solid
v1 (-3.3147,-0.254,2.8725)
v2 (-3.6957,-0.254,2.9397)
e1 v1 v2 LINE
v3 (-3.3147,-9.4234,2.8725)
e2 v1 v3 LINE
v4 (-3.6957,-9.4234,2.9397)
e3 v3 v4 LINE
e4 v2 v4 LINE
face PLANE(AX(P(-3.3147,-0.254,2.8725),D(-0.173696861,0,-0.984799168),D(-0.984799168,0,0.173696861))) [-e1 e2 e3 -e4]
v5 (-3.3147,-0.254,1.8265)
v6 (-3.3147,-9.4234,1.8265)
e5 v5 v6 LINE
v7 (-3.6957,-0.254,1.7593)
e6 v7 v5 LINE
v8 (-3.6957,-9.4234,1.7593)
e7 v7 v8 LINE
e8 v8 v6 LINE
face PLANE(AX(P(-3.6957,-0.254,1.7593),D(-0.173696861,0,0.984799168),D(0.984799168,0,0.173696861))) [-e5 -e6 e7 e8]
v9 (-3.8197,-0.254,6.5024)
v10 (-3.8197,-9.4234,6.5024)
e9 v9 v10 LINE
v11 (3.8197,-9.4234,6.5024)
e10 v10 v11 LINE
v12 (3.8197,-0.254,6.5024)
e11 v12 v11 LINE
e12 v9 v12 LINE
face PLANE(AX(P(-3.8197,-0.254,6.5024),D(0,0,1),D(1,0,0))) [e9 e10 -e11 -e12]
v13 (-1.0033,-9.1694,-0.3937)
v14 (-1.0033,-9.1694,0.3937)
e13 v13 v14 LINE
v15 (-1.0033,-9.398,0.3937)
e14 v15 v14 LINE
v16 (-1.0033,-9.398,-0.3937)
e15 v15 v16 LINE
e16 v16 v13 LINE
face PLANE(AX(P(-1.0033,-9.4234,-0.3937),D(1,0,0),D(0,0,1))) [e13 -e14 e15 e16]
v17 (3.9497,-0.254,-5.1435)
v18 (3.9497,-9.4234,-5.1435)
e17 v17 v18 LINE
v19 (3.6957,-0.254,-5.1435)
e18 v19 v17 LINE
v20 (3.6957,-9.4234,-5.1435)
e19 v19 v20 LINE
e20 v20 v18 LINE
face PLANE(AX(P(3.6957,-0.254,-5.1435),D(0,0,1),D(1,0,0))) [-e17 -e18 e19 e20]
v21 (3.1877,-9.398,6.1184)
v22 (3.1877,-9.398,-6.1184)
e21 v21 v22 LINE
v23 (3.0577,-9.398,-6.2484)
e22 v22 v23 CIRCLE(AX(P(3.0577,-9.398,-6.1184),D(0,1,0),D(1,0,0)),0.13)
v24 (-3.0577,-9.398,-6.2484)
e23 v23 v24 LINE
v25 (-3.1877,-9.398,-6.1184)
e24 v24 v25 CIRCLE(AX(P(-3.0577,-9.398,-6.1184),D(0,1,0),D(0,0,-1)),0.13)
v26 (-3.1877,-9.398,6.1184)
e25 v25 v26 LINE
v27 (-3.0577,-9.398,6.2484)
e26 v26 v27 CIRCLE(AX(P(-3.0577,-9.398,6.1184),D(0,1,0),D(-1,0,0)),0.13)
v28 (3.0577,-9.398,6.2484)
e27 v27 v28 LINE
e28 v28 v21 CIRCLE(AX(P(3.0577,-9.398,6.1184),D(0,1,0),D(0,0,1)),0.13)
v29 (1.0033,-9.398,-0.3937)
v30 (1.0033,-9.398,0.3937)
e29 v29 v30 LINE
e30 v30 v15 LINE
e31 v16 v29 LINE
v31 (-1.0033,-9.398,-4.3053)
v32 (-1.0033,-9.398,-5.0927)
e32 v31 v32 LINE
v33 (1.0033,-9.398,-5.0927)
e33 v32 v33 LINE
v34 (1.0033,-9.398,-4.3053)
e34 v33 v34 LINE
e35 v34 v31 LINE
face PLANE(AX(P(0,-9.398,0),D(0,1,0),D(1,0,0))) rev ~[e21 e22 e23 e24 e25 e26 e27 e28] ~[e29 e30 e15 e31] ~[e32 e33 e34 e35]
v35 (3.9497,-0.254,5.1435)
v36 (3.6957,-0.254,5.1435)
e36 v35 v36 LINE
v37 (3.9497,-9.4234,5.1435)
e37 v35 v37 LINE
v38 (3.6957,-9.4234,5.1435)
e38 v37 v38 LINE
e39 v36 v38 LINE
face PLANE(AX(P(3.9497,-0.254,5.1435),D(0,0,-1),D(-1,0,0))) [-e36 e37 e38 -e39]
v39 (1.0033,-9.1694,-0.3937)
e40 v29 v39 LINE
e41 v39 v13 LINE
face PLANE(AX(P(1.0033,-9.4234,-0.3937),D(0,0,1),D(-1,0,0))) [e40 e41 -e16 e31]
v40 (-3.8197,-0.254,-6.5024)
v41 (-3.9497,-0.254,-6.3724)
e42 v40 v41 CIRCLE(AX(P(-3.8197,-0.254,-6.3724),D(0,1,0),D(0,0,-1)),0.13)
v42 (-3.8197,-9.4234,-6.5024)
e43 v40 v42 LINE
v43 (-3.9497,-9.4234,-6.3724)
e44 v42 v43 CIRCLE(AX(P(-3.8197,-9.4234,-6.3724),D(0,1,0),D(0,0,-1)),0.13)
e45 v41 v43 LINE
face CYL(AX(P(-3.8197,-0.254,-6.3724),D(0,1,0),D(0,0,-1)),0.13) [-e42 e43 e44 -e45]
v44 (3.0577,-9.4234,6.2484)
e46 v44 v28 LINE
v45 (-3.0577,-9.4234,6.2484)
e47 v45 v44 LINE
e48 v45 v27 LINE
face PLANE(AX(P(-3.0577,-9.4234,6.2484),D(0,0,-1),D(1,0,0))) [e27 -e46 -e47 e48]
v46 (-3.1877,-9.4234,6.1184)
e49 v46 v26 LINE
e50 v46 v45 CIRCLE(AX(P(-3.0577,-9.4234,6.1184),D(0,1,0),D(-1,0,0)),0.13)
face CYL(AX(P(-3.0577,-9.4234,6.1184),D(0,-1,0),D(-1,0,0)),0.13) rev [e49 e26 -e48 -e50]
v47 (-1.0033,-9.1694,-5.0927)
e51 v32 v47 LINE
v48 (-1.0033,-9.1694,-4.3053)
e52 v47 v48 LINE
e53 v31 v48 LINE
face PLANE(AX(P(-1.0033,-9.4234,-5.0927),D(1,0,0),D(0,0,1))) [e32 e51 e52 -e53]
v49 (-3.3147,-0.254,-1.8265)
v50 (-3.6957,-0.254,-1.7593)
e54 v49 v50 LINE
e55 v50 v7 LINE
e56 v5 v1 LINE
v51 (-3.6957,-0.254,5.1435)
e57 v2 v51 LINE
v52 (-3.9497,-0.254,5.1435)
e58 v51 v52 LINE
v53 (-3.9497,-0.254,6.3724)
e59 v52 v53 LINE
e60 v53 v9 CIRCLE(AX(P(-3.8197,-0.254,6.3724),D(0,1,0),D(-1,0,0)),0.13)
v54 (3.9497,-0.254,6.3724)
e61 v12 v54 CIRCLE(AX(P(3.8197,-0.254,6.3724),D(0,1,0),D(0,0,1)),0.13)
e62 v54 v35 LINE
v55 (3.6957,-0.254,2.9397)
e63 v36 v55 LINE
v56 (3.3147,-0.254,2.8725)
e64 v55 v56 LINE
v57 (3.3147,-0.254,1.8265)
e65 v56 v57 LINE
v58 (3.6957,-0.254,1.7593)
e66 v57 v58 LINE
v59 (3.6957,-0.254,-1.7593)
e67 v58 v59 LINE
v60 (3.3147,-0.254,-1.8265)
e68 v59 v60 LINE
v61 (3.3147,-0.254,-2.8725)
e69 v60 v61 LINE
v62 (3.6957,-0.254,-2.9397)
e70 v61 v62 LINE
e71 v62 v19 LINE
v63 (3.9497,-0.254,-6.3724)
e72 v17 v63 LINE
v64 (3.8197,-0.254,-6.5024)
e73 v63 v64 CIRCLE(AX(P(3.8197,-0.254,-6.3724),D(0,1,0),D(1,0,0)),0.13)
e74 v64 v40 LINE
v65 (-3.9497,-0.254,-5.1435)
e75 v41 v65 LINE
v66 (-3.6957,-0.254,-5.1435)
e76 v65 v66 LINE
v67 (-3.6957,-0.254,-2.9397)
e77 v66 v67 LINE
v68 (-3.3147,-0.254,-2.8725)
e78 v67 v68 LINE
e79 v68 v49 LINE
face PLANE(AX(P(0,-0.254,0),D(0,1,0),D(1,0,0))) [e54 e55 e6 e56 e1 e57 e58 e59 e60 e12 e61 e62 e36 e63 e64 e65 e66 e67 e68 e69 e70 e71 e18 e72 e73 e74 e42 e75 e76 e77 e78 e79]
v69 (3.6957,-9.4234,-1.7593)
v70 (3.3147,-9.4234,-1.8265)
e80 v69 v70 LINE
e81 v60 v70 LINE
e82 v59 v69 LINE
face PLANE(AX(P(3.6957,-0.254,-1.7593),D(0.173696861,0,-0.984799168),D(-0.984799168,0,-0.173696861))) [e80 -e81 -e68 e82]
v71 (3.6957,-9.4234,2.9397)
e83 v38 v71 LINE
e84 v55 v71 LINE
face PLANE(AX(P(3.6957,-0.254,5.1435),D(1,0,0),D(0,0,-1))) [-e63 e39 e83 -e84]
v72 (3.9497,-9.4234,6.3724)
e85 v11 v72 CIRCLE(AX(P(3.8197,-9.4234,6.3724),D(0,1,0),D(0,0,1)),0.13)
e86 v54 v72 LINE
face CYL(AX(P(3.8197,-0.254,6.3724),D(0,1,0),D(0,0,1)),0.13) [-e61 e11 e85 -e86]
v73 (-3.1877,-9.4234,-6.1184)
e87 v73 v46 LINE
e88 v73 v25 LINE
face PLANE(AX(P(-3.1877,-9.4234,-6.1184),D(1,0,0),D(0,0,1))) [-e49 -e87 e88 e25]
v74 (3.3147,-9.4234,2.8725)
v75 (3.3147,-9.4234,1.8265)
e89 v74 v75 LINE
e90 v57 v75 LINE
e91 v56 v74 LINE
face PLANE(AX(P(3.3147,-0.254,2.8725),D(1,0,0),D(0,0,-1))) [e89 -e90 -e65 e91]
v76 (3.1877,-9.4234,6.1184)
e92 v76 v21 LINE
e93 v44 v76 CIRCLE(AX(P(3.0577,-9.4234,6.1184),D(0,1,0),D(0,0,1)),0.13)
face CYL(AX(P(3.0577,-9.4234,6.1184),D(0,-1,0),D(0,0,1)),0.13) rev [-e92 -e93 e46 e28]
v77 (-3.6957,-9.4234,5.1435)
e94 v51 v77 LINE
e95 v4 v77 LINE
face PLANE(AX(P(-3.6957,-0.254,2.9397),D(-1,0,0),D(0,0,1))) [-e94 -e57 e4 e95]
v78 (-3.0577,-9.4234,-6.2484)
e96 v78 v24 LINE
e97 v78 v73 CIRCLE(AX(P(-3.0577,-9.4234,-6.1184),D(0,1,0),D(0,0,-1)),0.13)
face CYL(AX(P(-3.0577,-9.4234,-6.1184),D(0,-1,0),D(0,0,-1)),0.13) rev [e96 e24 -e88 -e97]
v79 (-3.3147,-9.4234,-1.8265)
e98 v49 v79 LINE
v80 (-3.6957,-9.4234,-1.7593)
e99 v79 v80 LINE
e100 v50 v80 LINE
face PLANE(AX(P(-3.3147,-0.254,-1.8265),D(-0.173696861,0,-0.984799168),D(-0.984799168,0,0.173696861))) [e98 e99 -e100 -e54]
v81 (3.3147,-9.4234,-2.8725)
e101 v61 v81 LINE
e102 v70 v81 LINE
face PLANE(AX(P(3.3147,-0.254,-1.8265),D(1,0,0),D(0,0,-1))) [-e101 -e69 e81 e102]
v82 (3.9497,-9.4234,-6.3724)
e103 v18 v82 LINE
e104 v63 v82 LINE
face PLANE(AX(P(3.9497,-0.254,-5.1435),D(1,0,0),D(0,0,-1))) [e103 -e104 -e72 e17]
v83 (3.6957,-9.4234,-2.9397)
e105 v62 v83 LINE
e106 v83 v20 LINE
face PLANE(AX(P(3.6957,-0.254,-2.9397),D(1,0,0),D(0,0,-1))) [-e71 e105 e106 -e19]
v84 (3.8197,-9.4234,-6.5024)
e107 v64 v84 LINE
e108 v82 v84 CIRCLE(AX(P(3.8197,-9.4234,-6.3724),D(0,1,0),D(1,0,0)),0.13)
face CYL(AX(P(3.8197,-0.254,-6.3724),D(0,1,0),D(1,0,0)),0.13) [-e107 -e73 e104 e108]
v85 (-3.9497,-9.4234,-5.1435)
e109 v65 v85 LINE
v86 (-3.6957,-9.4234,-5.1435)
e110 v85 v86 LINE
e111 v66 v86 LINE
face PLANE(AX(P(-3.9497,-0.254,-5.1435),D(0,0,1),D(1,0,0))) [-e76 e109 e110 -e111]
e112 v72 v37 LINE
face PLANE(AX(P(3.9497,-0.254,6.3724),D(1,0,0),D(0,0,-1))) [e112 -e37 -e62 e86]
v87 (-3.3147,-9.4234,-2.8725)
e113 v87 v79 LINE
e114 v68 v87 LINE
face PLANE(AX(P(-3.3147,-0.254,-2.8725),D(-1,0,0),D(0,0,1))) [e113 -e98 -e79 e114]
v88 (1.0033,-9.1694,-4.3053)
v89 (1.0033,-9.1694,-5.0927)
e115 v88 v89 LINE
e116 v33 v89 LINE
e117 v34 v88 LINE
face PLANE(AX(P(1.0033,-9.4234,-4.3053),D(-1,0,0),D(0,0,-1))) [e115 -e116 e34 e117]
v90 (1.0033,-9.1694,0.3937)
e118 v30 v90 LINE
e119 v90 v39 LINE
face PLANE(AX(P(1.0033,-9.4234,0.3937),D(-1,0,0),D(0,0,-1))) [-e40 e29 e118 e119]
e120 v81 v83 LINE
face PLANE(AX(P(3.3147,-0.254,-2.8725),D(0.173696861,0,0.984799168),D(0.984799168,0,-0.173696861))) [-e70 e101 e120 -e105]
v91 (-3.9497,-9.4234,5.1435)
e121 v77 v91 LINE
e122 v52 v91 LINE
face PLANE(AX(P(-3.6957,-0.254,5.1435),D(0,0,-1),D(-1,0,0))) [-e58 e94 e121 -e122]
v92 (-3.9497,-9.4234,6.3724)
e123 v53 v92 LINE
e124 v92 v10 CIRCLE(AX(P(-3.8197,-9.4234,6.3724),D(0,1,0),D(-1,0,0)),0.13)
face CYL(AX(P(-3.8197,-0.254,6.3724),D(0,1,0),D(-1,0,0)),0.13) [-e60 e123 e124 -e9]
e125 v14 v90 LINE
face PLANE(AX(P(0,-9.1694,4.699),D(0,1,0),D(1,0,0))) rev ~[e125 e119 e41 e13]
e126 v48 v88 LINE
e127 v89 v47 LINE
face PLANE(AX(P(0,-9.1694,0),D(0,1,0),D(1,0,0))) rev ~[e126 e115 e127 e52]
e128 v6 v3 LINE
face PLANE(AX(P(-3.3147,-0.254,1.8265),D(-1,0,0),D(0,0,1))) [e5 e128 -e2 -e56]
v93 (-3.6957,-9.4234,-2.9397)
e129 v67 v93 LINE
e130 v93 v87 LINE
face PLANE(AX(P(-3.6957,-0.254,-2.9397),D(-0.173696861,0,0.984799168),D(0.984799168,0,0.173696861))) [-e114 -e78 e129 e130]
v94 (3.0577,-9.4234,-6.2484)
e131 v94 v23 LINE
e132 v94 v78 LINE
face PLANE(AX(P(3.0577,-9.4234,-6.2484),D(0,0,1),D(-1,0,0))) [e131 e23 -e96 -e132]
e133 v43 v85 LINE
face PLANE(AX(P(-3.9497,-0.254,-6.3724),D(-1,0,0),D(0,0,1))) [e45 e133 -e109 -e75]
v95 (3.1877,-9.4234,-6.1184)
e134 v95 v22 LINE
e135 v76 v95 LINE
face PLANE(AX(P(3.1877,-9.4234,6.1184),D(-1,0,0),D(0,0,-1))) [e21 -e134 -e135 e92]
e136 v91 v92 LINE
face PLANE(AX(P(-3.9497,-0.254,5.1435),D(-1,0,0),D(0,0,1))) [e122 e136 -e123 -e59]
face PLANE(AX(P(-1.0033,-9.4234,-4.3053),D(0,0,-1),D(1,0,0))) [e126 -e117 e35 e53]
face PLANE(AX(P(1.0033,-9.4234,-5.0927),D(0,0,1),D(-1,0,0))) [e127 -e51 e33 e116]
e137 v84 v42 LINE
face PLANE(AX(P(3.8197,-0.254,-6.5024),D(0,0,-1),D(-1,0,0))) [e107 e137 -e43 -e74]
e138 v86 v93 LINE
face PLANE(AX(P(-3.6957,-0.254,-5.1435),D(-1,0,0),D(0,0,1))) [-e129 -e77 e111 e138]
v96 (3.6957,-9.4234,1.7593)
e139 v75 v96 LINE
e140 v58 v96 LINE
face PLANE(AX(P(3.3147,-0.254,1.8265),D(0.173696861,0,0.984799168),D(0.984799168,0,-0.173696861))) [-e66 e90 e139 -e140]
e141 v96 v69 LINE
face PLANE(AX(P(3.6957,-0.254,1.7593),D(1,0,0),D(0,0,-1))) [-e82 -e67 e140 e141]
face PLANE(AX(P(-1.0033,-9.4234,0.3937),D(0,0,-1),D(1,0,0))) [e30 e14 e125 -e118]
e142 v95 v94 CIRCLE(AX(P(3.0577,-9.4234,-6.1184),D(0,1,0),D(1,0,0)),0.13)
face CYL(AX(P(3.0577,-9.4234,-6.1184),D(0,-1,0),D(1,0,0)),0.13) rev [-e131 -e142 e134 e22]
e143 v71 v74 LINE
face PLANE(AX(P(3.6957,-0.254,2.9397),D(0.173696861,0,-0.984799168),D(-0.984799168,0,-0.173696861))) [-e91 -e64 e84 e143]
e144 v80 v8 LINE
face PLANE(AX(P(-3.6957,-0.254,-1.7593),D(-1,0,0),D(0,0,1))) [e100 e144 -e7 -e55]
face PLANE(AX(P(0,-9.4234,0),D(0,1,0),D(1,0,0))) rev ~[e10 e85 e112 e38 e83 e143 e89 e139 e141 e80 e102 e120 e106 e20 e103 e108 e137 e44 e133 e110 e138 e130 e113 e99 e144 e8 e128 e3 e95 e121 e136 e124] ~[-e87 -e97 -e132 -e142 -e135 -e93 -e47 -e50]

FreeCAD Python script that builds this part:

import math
import FreeCAD as App
import Part
import Sketcher
from FreeCAD import Vector
Q = App.Units.Quantity


def add_polygon(sketch, points):
    """Adds a closed chain of lines whose ends are joined by coincident constraints."""
    first, n = sketch.GeometryCount, len(points)
    for a, b in zip(points, points[1:] + points[:1]):
        sketch.addGeometry(Part.LineSegment(App.Vector(*a, 0), App.Vector(*b, 0)), False)
    for i in range(n):
        sketch.addConstraint(Sketcher.Constraint("Coincident", first + i, 2, first + (i + 1) % n, 1))

doc = App.newDocument("Part")
body = doc.addObject("PartDesign::Body", "Body")

sketch1 = body.newObject("Sketcher::SketchObject", "Sketch")
sketch1.AttachmentSupport = (doc.getObject("XZ_Plane"), [""])
sketch1.MapMode = "FlatFace"
sketch1.AttachmentOffset = App.Placement(Vector(0, 0, 0.01 * 25.4), App.Rotation())
sketch1.addGeometry([
    Part.LineSegment(Vector(-3.7, 5.14, 0), Vector(-3.95, 5.14, 0)),
    Part.LineSegment(Vector(-3.95, 5.14, 0), Vector(-3.95, 6.37, 0)),
    Part.ArcOfCircle(Part.Circle(Vector(-3.82, 6.37, 0), Vector(0, 0, 1), 0.13), math.radians(90), math.radians(180)),
    Part.LineSegment(Vector(-3.82, 6.5, 0), Vector(3.82, 6.5, 0)),
    Part.ArcOfCircle(Part.Circle(Vector(3.82, 6.37, 0), Vector(0, 0, 1), 0.13), math.radians(0), math.radians(90)),
    Part.LineSegment(Vector(3.95, 6.37, 0), Vector(3.95, 5.14, 0)),
    Part.LineSegment(Vector(3.95, 5.14, 0), Vector(3.7, 5.14, 0)),
    Part.LineSegment(Vector(3.7, 5.14, 0), Vector(3.7, 2.94, 0)),
    Part.LineSegment(Vector(3.7, 2.94, 0), Vector(3.31, 2.87, 0)),
    Part.LineSegment(Vector(3.31, 2.87, 0), Vector(3.31, 1.83, 0)),
    Part.LineSegment(Vector(3.31, 1.83, 0), Vector(3.7, 1.76, 0)),
    Part.LineSegment(Vector(3.7, 1.76, 0), Vector(3.7, -1.76, 0)),
    Part.LineSegment(Vector(3.7, -1.76, 0), Vector(3.31, -1.83, 0)),
    Part.LineSegment(Vector(3.31, -1.83, 0), Vector(3.31, -2.87, 0)),
    Part.LineSegment(Vector(3.31, -2.87, 0), Vector(3.7, -2.94, 0)),
    Part.LineSegment(Vector(3.7, -2.94, 0), Vector(3.7, -5.14, 0)),
    Part.LineSegment(Vector(3.7, -5.14, 0), Vector(3.95, -5.14, 0)),
    Part.LineSegment(Vector(3.95, -5.14, 0), Vector(3.95, -6.37, 0)),
    Part.ArcOfCircle(Part.Circle(Vector(3.82, -6.37, 0), Vector(0, 0, 1), 0.13), math.radians(-90), math.radians(0)),
    Part.LineSegment(Vector(3.82, -6.5, 0), Vector(-3.82, -6.5, 0)),
    Part.ArcOfCircle(Part.Circle(Vector(-3.82, -6.37, 0), Vector(0, 0, 1), 0.13), math.radians(180), math.radians(270)),
    Part.LineSegment(Vector(-3.95, -6.37, 0), Vector(-3.95, -5.14, 0)),
    Part.LineSegment(Vector(-3.95, -5.14, 0), Vector(-3.7, -5.14, 0)),
    Part.LineSegment(Vector(-3.7, -5.14, 0), Vector(-3.7, -2.94, 0)),
    Part.LineSegment(Vector(-3.7, -2.94, 0), Vector(-3.31, -2.87, 0)),
    Part.LineSegment(Vector(-3.31, -2.87, 0), Vector(-3.31, -1.83, 0)),
    Part.LineSegment(Vector(-3.31, -1.83, 0), Vector(-3.7, -1.76, 0)),
    Part.LineSegment(Vector(-3.7, -1.76, 0), Vector(-3.7, 1.76, 0)),
    Part.LineSegment(Vector(-3.7, 1.76, 0), Vector(-3.31, 1.83, 0)),
    Part.LineSegment(Vector(-3.31, 1.83, 0), Vector(-3.31, 2.87, 0)),
    Part.LineSegment(Vector(-3.31, 2.87, 0), Vector(-3.7, 2.94, 0)),
    Part.LineSegment(Vector(-3.7, 2.94, 0), Vector(-3.7, 5.14, 0)),
], False)
sketch1.addConstraint([
    Sketcher.Constraint("Coincident", 0, 2, 1, 1),
    Sketcher.Constraint("Tangent", 1, 2, 2, 2),
    Sketcher.Constraint("Tangent", 2, 1, 3, 1),
    Sketcher.Constraint("Tangent", 3, 2, 4, 2),
    Sketcher.Constraint("Tangent", 4, 1, 5, 1),
    Sketcher.Constraint("Coincident", 5, 2, 6, 1),
    Sketcher.Constraint("Coincident", 6, 2, 7, 1),
    Sketcher.Constraint("Coincident", 7, 2, 8, 1),
    Sketcher.Constraint("Coincident", 8, 2, 9, 1),
    Sketcher.Constraint("Coincident", 9, 2, 10, 1),
    Sketcher.Constraint("Coincident", 10, 2, 11, 1),
    Sketcher.Constraint("Coincident", 11, 2, 12, 1),
    Sketcher.Constraint("Coincident", 12, 2, 13, 1),
    Sketcher.Constraint("Coincident", 13, 2, 14, 1),
    Sketcher.Constraint("Coincident", 14, 2, 15, 1),
    Sketcher.Constraint("Coincident", 15, 2, 16, 1),
    Sketcher.Constraint("Coincident", 16, 2, 17, 1),
    Sketcher.Constraint("Tangent", 17, 2, 18, 2),
    Sketcher.Constraint("Tangent", 18, 1, 19, 1),
    Sketcher.Constraint("Tangent", 19, 2, 20, 2),
    Sketcher.Constraint("Tangent", 20, 1, 21, 1),
    Sketcher.Constraint("Coincident", 21, 2, 22, 1),
    Sketcher.Constraint("Coincident", 22, 2, 23, 1),
    Sketcher.Constraint("Coincident", 23, 2, 24, 1),
    Sketcher.Constraint("Coincident", 24, 2, 25, 1),
    Sketcher.Constraint("Coincident", 25, 2, 26, 1),
    Sketcher.Constraint("Coincident", 26, 2, 27, 1),
    Sketcher.Constraint("Coincident", 27, 2, 28, 1),
    Sketcher.Constraint("Coincident", 28, 2, 29, 1),
    Sketcher.Constraint("Coincident", 29, 2, 30, 1),
    Sketcher.Constraint("Coincident", 30, 2, 31, 1),
    Sketcher.Constraint("Coincident", 31, 2, 0, 1),
    Sketcher.Constraint("Horizontal", 0),
    Sketcher.Constraint("Vertical", 1),
    Sketcher.Constraint("Horizontal", 3),
    Sketcher.Constraint("Vertical", 5),
    Sketcher.Constraint("Horizontal", 6),
    Sketcher.Constraint("Vertical", 7),
    Sketcher.Constraint("Vertical", 9),
    Sketcher.Constraint("Vertical", 11),
    Sketcher.Constraint("Vertical", 13),
    Sketcher.Constraint("Vertical", 15),
    Sketcher.Constraint("Horizontal", 16),
    Sketcher.Constraint("Vertical", 17),
    Sketcher.Constraint("Horizontal", 19),
    Sketcher.Constraint("Vertical", 21),
    Sketcher.Constraint("Horizontal", 22),
    Sketcher.Constraint("Vertical", 23),
    Sketcher.Constraint("Vertical", 25),
    Sketcher.Constraint("Vertical", 27),
    Sketcher.Constraint("Vertical", 29),
    Sketcher.Constraint("Vertical", 31),
    Sketcher.Constraint("Equal", 2, 4),
    Sketcher.Constraint("Equal", 4, 18),
    Sketcher.Constraint("Equal", 18, 20),
    Sketcher.Constraint("Symmetric", 2, 3, 18, 3, -1, 1),
    Sketcher.Constraint("Symmetric", 5, 2, 21, 2, -1, 1),
    Sketcher.Constraint("Symmetric", 7, 2, 23, 2, -1, 1),
    Sketcher.Constraint("Symmetric", 8, 2, 24, 2, -1, 1),
    Sketcher.Constraint("Symmetric", 10, 2, 26, 2, -1, 1),
    Sketcher.Constraint("Symmetric", 12, 2, 28, 2, -1, 1),
    Sketcher.Constraint("Symmetric", 14, 2, 30, 2, -1, 1),
    Sketcher.Constraint("Symmetric", 0, 2, 5, 2, -2),
    Sketcher.Constraint("Symmetric", 15, 2, 22, 2, -2),
    Sketcher.Constraint("Symmetric", 13, 2, 24, 2, -2),
    Sketcher.Constraint("Parallel", 8, 12),
    Sketcher.Constraint("Parallel", 10, 14),
    Sketcher.Constraint("Parallel", 14, 26),
    Sketcher.Constraint("Parallel", 24, 28),
    Sketcher.Constraint("Parallel", 26, 30),
    Sketcher.Constraint("Horizontal", 14, 2, 23, 2),
    Sketcher.Constraint("Horizontal", 12, 2, 25, 2),
    Sketcher.Constraint("Vertical", 7, 2, 10, 2),
    Sketcher.Constraint("DistanceX", 0, 2, 0, 1, Q("0.01 in")),
    Sketcher.Constraint("Radius", 2, Q("0.13 mm")),
    Sketcher.Constraint("DistanceY", -1, 1, 2, 1, Q("0.256 in")),
    Sketcher.Constraint("DistanceX", 1, 2, 4, 1, Q("0.311 in")),
    Sketcher.Constraint("DistanceX", 8, 2, 7, 2, Q("0.015 in")),
    Sketcher.Constraint("DistanceY", 11, 2, 7, 2, Q("0.185 in")),
    Sketcher.Constraint("DistanceY", 1, 1, 1, 2, Q("1.229 mm")),
    Sketcher.Constraint("DistanceY", 7, 2, 7, 1, Q("2.2038 mm")),
    Sketcher.Constraint("DistanceY", 9, 2, 9, 1, Q("1.046 mm")),
])
pad1 = body.newObject("PartDesign::Pad", "Pad")
pad1.Profile = sketch1
pad1.Length = Q("0.361 in")

sketch2 = body.newObject("Sketcher::SketchObject", "Sketch001")
sketch2.AttachmentSupport = (doc.getObject("XZ_Plane"), [""])
sketch2.MapMode = "FlatFace"
sketch2.AttachmentOffset = App.Placement(Vector(0, 0, 0.371 * 25.4), App.Rotation())
sketch2.addGeometry([
    Part.ArcOfCircle(Part.Circle(Vector(-3.06, -6.12, 0), Vector(0, 0, 1), 0.13), math.radians(180), math.radians(270)),
    Part.LineSegment(Vector(-3.19, -6.12, 0), Vector(-3.19, 6.12, 0)),
    Part.ArcOfCircle(Part.Circle(Vector(-3.06, 6.12, 0), Vector(0, 0, 1), 0.13), math.radians(90), math.radians(180)),
    Part.LineSegment(Vector(-3.06, 6.25, 0), Vector(3.06, 6.25, 0)),
    Part.ArcOfCircle(Part.Circle(Vector(3.06, 6.12, 0), Vector(0, 0, 1), 0.13), math.radians(0), math.radians(90)),
    Part.LineSegment(Vector(3.19, 6.12, 0), Vector(3.19, -6.12, 0)),
    Part.ArcOfCircle(Part.Circle(Vector(3.06, -6.12, 0), Vector(0, 0, 1), 0.13), math.radians(-90), math.radians(0)),
    Part.LineSegment(Vector(3.06, -6.25, 0), Vector(-3.06, -6.25, 0)),
], False)
sketch2.addConstraint([
    Sketcher.Constraint("Tangent", 0, 1, 1, 1),
    Sketcher.Constraint("Tangent", 1, 2, 2, 2),
    Sketcher.Constraint("Tangent", 2, 1, 3, 1),
    Sketcher.Constraint("Tangent", 3, 2, 4, 2),
    Sketcher.Constraint("Tangent", 4, 1, 5, 1),
    Sketcher.Constraint("Tangent", 5, 2, 6, 2),
    Sketcher.Constraint("Tangent", 6, 1, 7, 1),
    Sketcher.Constraint("Tangent", 7, 2, 0, 2),
    Sketcher.Constraint("Vertical", 1),
    Sketcher.Constraint("Horizontal", 3),
    Sketcher.Constraint("Vertical", 5),
    Sketcher.Constraint("Horizontal", 7),
    Sketcher.Constraint("Equal", 0, 2),
    Sketcher.Constraint("Equal", 2, 4),
    Sketcher.Constraint("Equal", 4, 6),
    Sketcher.Constraint("Symmetric", 0, 3, 4, 3, -1, 1),
    Sketcher.Constraint("Radius", 0, Q("0.13 mm")),
    Sketcher.Constraint("DistanceY", -1, 1, 2, 1, Q("0.246 in")),
    Sketcher.Constraint("DistanceX", 1, 2, 4, 1, Q("0.251 in")),
])
pocket1 = body.newObject("PartDesign::Pocket", "Pocket")
pocket1.Profile = sketch2
pocket1.Length = Q("0.001 in")

sketch3 = body.newObject("Sketcher::SketchObject", "Sketch002")
sketch3.AttachmentSupport = (doc.getObject("XZ_Plane"), [""])
sketch3.MapMode = "FlatFace"
sketch3.AttachmentOffset = App.Placement(Vector(0, 0, 0.371 * 25.4), App.Rotation())
add_polygon(sketch3, [(1, -5.1), (-1, -5.1), (-1, -4.3), (1, -4.3)])
sketch3.addConstraint([
    Sketcher.Constraint("Horizontal", 0),
    Sketcher.Constraint("Vertical", 1),
    Sketcher.Constraint("Horizontal", 2),
    Sketcher.Constraint("Vertical", 3),
    Sketcher.Constraint("DistanceX", 0, 2, 0, 1, Q("0.079 in")),
    Sketcher.Constraint("DistanceY", 1, 1, 1, 2, Q("0.031 in")),
    Sketcher.Constraint("DistanceX", 0, 2, -1, 1, Q("0.0395 in")),
    Sketcher.Constraint("DistanceY", 0, 2, -1, 1, Q("0.2005 in")),
])
pocket2 = body.newObject("PartDesign::Pocket", "Pocket001")
pocket2.Profile = sketch3
pocket2.Length = Q("0.01 in")
doc.recompute()

linearpattern = body.newObject("PartDesign::LinearPattern", "LinearPattern")
linearpattern.Originals = [pocket2]
linearpattern.Direction = (doc.getObject("Z_Axis"), [""])
linearpattern.Mode = "offset"
linearpattern.Offset = Q("0.185 in")
linearpattern.Occurrences = 2
body.Tip = linearpattern

doc.recompute()
